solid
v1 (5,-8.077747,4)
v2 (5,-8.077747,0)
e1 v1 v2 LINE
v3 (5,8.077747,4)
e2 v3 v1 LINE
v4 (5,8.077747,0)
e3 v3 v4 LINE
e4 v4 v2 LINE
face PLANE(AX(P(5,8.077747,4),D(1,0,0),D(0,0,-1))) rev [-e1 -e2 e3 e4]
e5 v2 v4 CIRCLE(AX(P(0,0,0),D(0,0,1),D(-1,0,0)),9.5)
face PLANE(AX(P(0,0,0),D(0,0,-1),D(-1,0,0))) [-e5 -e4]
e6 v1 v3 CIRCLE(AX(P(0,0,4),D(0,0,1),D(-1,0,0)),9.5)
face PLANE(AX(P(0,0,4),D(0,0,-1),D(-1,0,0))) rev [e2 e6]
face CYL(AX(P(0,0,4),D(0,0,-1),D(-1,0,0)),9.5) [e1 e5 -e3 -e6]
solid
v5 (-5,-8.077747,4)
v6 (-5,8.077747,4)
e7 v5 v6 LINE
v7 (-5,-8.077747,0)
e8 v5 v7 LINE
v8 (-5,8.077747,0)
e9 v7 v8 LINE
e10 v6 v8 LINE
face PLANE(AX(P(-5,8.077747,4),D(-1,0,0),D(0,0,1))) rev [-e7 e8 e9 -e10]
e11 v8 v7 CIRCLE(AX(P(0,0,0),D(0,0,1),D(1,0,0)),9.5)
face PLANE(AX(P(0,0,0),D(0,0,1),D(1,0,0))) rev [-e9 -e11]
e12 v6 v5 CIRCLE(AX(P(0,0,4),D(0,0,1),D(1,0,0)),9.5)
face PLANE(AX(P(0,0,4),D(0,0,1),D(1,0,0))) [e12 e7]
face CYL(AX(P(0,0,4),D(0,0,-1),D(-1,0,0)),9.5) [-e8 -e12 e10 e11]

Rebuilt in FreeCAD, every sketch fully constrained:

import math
import FreeCAD as App
import Part
import Sketcher
from FreeCAD import Vector

doc = App.newDocument("Part")
body = doc.addObject("PartDesign::Body", "Body")

# Sketch on XY plane
sketch1 = body.newObject("Sketcher::SketchObject", "Sketch")
sketch1.AttachmentSupport = (doc.getObject("XY_Plane"), [""])
sketch1.MapMode = "FlatFace"
sketch1.addGeometry([
    Part.LineSegment(Vector(-5, -8.077747, 0), Vector(-5, 8.077747, 0)),
    Part.ArcOfCircle(Part.Circle(Vector(0, 0, 0), Vector(0, 0, 1), 9.5), math.radians(121.756864), math.radians(238.243136)),
], False)
sketch1.addConstraint([
    Sketcher.Constraint("Coincident", 0, 1, 1, 2),
    Sketcher.Constraint("Coincident", 1, 1, 0, 2),
    Sketcher.Constraint("Vertical", 0),
    Sketcher.Constraint("Coincident", 1, 3, -1, 1),
    Sketcher.Constraint("Radius", 1, 9.5),
    Sketcher.Constraint("DistanceX", 0, 1, -1, 1, 5.0),
])
pad1 = body.newObject("PartDesign::Pad", "Pad")
pad1.Profile = sketch1
pad1.Length = 4
body2 = doc.addObject("PartDesign::Body", "Body001")

# Sketch on XY plane
sketch2 = body2.newObject("Sketcher::SketchObject", "Sketch001")
sketch2.AttachmentSupport = (doc.getObject("XY_Plane001"), [""])
sketch2.MapMode = "FlatFace"
sketch2.addGeometry([
    Part.LineSegment(Vector(5, 8.077747, 0), Vector(5, -8.077747, 0)),
    Part.ArcOfCircle(Part.Circle(Vector(0, 0, 0), Vector(0, 0, 1), 9.5), math.radians(-58.243136), math.radians(58.243136)),
], False)
sketch2.addConstraint([
    Sketcher.Constraint("Coincident", 0, 1, 1, 2),
    Sketcher.Constraint("Coincident", 1, 1, 0, 2),
    Sketcher.Constraint("Vertical", 0),
    Sketcher.Constraint("Coincident", 1, 3, -1, 1),
    Sketcher.Constraint("Radius", 1, 9.5),
    Sketcher.Constraint("DistanceX", -1, 1, 0, 1, 5.0),
])
pad2 = body2.newObject("PartDesign::Pad", "Pad001")
pad2.Profile = sketch2
pad2.Length = 4

doc.recompute()
